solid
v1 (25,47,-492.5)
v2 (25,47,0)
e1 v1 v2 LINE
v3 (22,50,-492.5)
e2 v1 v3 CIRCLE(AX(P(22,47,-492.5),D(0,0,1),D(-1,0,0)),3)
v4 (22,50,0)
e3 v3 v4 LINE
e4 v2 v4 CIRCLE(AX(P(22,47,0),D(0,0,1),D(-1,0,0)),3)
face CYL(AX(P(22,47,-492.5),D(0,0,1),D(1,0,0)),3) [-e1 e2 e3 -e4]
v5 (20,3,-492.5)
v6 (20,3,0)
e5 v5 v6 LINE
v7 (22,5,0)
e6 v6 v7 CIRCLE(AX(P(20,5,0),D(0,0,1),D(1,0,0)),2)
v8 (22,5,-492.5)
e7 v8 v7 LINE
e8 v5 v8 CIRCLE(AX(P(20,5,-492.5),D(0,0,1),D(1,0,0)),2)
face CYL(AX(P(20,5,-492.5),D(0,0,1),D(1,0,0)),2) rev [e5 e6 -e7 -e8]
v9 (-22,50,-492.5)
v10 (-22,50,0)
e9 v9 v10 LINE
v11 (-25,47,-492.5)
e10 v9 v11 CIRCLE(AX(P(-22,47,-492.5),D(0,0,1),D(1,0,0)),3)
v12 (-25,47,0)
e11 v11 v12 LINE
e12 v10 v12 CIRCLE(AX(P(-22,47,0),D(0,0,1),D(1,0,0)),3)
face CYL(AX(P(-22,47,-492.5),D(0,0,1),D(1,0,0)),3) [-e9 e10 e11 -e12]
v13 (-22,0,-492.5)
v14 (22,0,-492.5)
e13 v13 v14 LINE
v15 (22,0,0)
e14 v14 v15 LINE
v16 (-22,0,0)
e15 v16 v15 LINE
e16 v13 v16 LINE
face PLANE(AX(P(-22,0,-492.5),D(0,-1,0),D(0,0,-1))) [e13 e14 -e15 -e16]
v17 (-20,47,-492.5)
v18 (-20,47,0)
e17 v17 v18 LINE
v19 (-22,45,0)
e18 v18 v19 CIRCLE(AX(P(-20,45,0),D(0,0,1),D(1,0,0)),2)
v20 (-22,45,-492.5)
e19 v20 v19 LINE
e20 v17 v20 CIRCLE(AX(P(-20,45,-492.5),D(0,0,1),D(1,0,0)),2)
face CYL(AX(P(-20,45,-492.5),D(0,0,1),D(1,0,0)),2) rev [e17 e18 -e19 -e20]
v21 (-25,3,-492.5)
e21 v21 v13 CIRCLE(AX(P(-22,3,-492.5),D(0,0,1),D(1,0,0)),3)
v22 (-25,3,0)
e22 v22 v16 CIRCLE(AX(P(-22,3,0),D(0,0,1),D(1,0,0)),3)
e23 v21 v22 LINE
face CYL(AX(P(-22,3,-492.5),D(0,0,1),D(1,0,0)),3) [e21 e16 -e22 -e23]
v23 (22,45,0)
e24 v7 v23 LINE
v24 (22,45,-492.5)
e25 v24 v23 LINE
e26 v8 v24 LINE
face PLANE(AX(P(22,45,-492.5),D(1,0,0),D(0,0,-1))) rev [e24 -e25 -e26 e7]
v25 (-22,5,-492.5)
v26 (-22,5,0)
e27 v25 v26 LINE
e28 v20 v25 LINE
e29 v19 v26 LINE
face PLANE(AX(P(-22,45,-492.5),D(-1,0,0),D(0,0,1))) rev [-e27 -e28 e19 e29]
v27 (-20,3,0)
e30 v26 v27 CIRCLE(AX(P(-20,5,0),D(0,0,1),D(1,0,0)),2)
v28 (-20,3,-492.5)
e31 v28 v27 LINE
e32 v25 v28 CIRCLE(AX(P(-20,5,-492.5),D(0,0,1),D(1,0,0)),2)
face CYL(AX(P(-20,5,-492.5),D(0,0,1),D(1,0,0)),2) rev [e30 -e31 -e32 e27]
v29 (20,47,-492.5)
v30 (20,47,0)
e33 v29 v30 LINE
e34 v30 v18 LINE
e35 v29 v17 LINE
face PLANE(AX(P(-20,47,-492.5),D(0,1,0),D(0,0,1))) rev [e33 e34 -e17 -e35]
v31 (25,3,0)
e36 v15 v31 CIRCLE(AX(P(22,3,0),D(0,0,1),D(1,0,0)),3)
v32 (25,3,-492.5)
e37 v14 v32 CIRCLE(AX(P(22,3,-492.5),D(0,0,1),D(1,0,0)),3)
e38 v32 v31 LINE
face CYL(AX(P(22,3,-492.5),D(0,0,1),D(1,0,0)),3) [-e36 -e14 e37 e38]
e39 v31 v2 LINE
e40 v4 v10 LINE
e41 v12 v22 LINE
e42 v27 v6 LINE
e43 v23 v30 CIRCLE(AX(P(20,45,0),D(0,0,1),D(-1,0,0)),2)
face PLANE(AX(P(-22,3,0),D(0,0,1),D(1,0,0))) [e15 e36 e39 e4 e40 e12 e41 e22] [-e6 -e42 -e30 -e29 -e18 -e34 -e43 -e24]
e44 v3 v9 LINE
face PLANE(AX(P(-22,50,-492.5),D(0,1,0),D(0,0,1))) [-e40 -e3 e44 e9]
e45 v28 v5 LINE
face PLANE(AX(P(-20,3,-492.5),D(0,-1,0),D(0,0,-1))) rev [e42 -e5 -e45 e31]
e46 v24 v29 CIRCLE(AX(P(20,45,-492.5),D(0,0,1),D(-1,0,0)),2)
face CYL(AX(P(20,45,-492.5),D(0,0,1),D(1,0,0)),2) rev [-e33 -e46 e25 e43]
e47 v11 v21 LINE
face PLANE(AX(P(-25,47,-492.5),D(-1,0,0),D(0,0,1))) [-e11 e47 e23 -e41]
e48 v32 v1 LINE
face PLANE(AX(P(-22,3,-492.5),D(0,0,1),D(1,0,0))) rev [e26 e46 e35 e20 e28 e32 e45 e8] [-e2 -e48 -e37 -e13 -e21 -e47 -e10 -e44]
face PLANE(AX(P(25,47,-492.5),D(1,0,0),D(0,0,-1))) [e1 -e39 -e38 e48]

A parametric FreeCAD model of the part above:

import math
import FreeCAD as App
import Part
import Sketcher

V = App.Vector

doc = App.newDocument("Part")
body = doc.addObject("PartDesign::Body", "Body")

# Sketch on XY plane
sketch1 = body.newObject("Sketcher::SketchObject", "Sketch")
sketch1.AttachmentSupport = (doc.getObject("XY_Plane"), [""])
sketch1.MapMode = "FlatFace"
sketch1.AttachmentOffset = App.Placement(V(0, 0, -492.5), App.Rotation())
sketch1.addGeometry([
    Part.LineSegment(V(22, 50, 0), V(-22, 50, 0)),  # 0
    Part.ArcOfCircle(Part.Circle(V(-22, 47, 0), V(0, 0, 1), 3), math.radians(90), math.radians(180)),  # 1
    Part.LineSegment(V(-25, 47, 0), V(-25, 3, 0)),  # 2
    Part.ArcOfCircle(Part.Circle(V(-22, 3, 0), V(0, 0, 1), 3), math.radians(180), math.radians(270)),  # 3
    Part.LineSegment(V(-22, 0, 0), V(22, 0, 0)),  # 4
    Part.ArcOfCircle(Part.Circle(V(22, 3, 0), V(0, 0, 1), 3), math.radians(-90), math.radians(0)),  # 5
    Part.LineSegment(V(25, 3, 0), V(25, 47, 0)),  # 6
    Part.ArcOfCircle(Part.Circle(V(22, 47, 0), V(0, 0, 1), 3), math.radians(0), math.radians(90)),  # 7
    Part.LineSegment(V(-20, 47, 0), V(20, 47, 0)),  # 8
    Part.ArcOfCircle(Part.Circle(V(20, 45, 0), V(0, 0, 1), 2), math.radians(0), math.radians(90)),  # 9
    Part.LineSegment(V(22, 45, 0), V(22, 5, 0)),  # 10
    Part.ArcOfCircle(Part.Circle(V(20, 5, 0), V(0, 0, 1), 2), math.radians(-90), math.radians(0)),  # 11
    Part.LineSegment(V(20, 3, 0), V(-20, 3, 0)),  # 12
    Part.ArcOfCircle(Part.Circle(V(-20, 5, 0), V(0, 0, 1), 2), math.radians(-180), math.radians(-90)),  # 13
    Part.LineSegment(V(-22, 5, 0), V(-22, 45, 0)),  # 14
    Part.ArcOfCircle(Part.Circle(V(-20, 45, 0), V(0, 0, 1), 2), math.radians(90), math.radians(180)),  # 15
], False)
sketch1.addConstraint([
    Sketcher.Constraint("Tangent", 0, 2, 1, 1),
    Sketcher.Constraint("Tangent", 1, 2, 2, 1),
    Sketcher.Constraint("Tangent", 2, 2, 3, 1),
    Sketcher.Constraint("Tangent", 3, 2, 4, 1),
    Sketcher.Constraint("Tangent", 4, 2, 5, 1),
    Sketcher.Constraint("Tangent", 5, 2, 6, 1),
    Sketcher.Constraint("Tangent", 6, 2, 7, 1),
    Sketcher.Constraint("Tangent", 7, 2, 0, 1),
    Sketcher.Constraint("Tangent", 8, 2, 9, 2),
    Sketcher.Constraint("Tangent", 9, 1, 10, 1),
    Sketcher.Constraint("Tangent", 10, 2, 11, 2),
    Sketcher.Constraint("Tangent", 11, 1, 12, 1),
    Sketcher.Constraint("Tangent", 12, 2, 13, 2),
    Sketcher.Constraint("Tangent", 13, 1, 14, 1),
    Sketcher.Constraint("Tangent", 14, 2, 15, 2),
    Sketcher.Constraint("Tangent", 15, 1, 8, 1),
    Sketcher.Constraint("Horizontal", 0),
    Sketcher.Constraint("Vertical", 2),
    Sketcher.Constraint("Horizontal", 4),
    Sketcher.Constraint("Vertical", 6),
    Sketcher.Constraint("Horizontal", 8),
    Sketcher.Constraint("Vertical", 10),
    Sketcher.Constraint("Horizontal", 12),
    Sketcher.Constraint("Vertical", 14),
    Sketcher.Constraint("Equal", 1, 3),
    Sketcher.Constraint("Equal", 3, 5),
    Sketcher.Constraint("Equal", 5, 7),
    Sketcher.Constraint("Equal", 9, 11),
    Sketcher.Constraint("Equal", 11, 13),
    Sketcher.Constraint("Equal", 13, 15),
    Sketcher.Constraint("Symmetric", 3, 2, 4, 2, -1, 1),
    Sketcher.Constraint("Horizontal", 6, 2, 8, 2),
    Sketcher.Constraint("Horizontal", 5, 2, 11, 1),
    Sketcher.Constraint("Vertical", 7, 2, 9, 1),
    Sketcher.Constraint("Vertical", 3, 2, 13, 1),
    Sketcher.Constraint("Equal", 4, 2),
    Sketcher.Constraint("Radius", 1, 3.0),
    Sketcher.Constraint("Radius", 9, 2.0),
    Sketcher.Constraint("DistanceX", 0, 2, 0, 1, 44.0),
])
pad1 = body.newObject("PartDesign::Pad", "Pad")
pad1.Profile = sketch1
pad1.Length = 492.5

doc.recompute()
